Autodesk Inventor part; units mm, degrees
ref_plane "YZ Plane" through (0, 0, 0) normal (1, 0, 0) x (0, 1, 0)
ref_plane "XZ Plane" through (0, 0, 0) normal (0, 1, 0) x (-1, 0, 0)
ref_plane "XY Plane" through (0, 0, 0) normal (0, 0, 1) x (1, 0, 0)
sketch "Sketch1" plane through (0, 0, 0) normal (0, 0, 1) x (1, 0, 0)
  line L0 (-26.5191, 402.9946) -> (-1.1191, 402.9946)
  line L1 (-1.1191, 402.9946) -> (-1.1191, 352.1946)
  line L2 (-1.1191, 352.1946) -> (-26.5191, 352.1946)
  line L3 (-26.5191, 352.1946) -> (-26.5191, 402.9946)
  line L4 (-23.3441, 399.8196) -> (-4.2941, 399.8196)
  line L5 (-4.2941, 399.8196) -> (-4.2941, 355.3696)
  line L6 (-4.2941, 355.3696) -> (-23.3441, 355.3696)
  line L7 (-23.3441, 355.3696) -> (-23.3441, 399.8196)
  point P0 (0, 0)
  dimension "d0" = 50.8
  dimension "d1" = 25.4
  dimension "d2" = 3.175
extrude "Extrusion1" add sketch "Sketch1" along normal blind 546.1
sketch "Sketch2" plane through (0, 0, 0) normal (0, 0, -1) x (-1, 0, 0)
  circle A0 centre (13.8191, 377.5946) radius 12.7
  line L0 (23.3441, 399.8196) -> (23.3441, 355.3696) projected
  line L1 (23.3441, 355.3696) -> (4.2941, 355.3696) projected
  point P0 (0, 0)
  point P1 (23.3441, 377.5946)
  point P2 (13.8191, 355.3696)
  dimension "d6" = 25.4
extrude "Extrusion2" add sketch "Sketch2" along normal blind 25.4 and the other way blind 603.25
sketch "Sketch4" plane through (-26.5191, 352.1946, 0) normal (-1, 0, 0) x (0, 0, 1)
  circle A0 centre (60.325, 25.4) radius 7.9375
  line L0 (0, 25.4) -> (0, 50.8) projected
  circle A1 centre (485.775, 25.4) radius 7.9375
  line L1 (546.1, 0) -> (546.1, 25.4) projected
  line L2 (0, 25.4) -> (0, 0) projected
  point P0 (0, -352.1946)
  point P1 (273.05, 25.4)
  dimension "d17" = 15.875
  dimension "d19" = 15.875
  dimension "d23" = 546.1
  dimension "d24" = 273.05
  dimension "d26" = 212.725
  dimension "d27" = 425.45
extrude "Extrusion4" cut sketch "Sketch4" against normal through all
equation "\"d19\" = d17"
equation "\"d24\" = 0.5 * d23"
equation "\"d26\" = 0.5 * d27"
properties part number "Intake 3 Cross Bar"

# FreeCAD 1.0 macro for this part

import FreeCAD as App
import Part
import Sketcher

V = App.Vector
Q = App.Units.Quantity


def add_polygon(sketch, points):
    """Adds a closed chain of lines whose ends are joined by coincident constraints."""
    first, n = sketch.GeometryCount, len(points)
    for a, b in zip(points, points[1:] + points[:1]):
        sketch.addGeometry(Part.LineSegment(App.Vector(*a, 0), App.Vector(*b, 0)), False)
    for i in range(n):
        sketch.addConstraint(Sketcher.Constraint("Coincident", first + i, 2, first + (i + 1) % n, 1))

doc = App.newDocument("Part")
params = doc.addObject("Spreadsheet::Sheet", "Params")
for row, (alias, value) in enumerate([
    ("sketch1_width", "1 in"),
    ("sketch1_height", "2 in"),
    ("pad1_length", "21.5 in"),
    ("sketch2_diameter", "1 in"),
    ("pad2_length", "1 in"),
    ("pad2_length2", "23.75 in"),
    ("sketch3_diameter", "0.625 in"),
], start=1):
    params.set(f"A{row}", alias)
    params.set(f"B{row}", "=" + value)
    params.setAlias(f"B{row}", alias)

body = doc.addObject("PartDesign::Body", "Body")

sketch1 = doc.addObject("Sketcher::SketchObject", "Sketch")
body.addObject(sketch1)
sketch1.AttachmentSupport = (doc.XY_Plane, [""])
sketch1.MapMode = "FlatFace"
add_polygon(sketch1, [(-1, 403), (-27, 403), (-27, 352), (-1, 352)])
add_polygon(sketch1, [(-23, 355), (-23, 400), (-4, 400), (-4, 355)])
sketch1.addConstraint([
    Sketcher.Constraint("Horizontal", 0),
    Sketcher.Constraint("Vertical", 1),
    Sketcher.Constraint("Horizontal", 2),
    Sketcher.Constraint("Vertical", 3),
    Sketcher.Constraint("Vertical", 4),
    Sketcher.Constraint("Horizontal", 5),
    Sketcher.Constraint("Vertical", 6),
    Sketcher.Constraint("Horizontal", 7),
    Sketcher.Constraint("DistanceX", 0, 2, 0, 1, Q("1 in")),
    Sketcher.Constraint("DistanceY", 1, 2, 1, 1, Q("2 in")),
    Sketcher.Constraint("DistanceX", 0, 2, 4, 2, Q("0.125 in")),
    Sketcher.Constraint("DistanceY", 4, 2, 0, 2, Q("0.125 in")),
    Sketcher.Constraint("DistanceX", 5, 2, 3, 2, Q("0.125 in")),
    Sketcher.Constraint("DistanceY", 2, 2, 6, 2, Q("0.125 in")),
    Sketcher.Constraint("DistanceX", 0, 2, -1, 1, Q("26.519 mm")),
    Sketcher.Constraint("DistanceY", -1, 1, 0, 2, Q("402.9946 mm")),
])
sketch1.setExpression("Constraints[16]", "Params.sketch1_width")
sketch1.setExpression("Constraints[17]", "Params.sketch1_height")
pad1 = doc.addObject("PartDesign::Pad", "Pad")
body.addObject(pad1)
pad1.Profile = sketch1
pad1.setExpression("Length", "Params.pad1_length")

sketch2 = doc.addObject("Sketcher::SketchObject", "Sketch001")
body.addObject(sketch2)
sketch2.AttachmentSupport = (doc.XY_Plane, [""])
sketch2.MapMode = "FlatFace"
sketch2.addGeometry(Part.Circle(V(-14, 378, 0), V(0, 0, 1), 13), False)
sketch2.addConstraint([
    Sketcher.Constraint("Diameter", 0, Q("1 in")),
    Sketcher.Constraint("DistanceX", 0, 3, -1, 1, Q("13.819 mm")),
    Sketcher.Constraint("DistanceY", -1, 1, 0, 3, Q("377.5946 mm")),
])
sketch2.setExpression("Constraints[0]", "Params.sketch2_diameter")
pad2 = doc.addObject("PartDesign::Pad", "Pad001")
body.addObject(pad2)
pad2.Profile = sketch2
pad2.Type = "TwoLengths"
pad2.setExpression("Length", "Params.pad2_length")
pad2.setExpression("Length2", "Params.pad2_length2")
pad2.Reversed = True

sketch3 = doc.addObject("Sketcher::SketchObject", "Sketch002")
body.addObject(sketch3)
sketch3.AttachmentSupport = (doc.YZ_Plane, [""])
sketch3.MapMode = "FlatFace"
sketch3.AttachmentOffset = App.Placement(V(0, 0, -26.5191), App.Rotation())
sketch3.addGeometry([
    Part.Circle(V(378, 60, 0), V(0, 0, 1), 8),
    Part.Circle(V(378, 486, 0), V(0, 0, 1), 8),
], False)
sketch3.addConstraint([
    Sketcher.Constraint("Equal", 0, 1),
    Sketcher.Constraint("Vertical", 0, 3, 1, 3),
    Sketcher.Constraint("Diameter", 0, Q("0.625 in")),
    Sketcher.Constraint("DistanceY", 0, 3, 1, 3, Q("16.75 in")),
    Sketcher.Constraint("DistanceY", -1, 1, 0, 3, Q("2.375 in")),
    Sketcher.Constraint("DistanceX", -1, 1, 0, 3, Q("377.5946 mm")),
])
sketch3.setExpression("Constraints[2]", "Params.sketch3_diameter")
pocket1 = doc.addObject("PartDesign::Pocket", "Pocket")
body.addObject(pocket1)
pocket1.Profile = sketch3
pocket1.Type = "ThroughAll"
pocket1.Reversed = True

doc.recompute()
